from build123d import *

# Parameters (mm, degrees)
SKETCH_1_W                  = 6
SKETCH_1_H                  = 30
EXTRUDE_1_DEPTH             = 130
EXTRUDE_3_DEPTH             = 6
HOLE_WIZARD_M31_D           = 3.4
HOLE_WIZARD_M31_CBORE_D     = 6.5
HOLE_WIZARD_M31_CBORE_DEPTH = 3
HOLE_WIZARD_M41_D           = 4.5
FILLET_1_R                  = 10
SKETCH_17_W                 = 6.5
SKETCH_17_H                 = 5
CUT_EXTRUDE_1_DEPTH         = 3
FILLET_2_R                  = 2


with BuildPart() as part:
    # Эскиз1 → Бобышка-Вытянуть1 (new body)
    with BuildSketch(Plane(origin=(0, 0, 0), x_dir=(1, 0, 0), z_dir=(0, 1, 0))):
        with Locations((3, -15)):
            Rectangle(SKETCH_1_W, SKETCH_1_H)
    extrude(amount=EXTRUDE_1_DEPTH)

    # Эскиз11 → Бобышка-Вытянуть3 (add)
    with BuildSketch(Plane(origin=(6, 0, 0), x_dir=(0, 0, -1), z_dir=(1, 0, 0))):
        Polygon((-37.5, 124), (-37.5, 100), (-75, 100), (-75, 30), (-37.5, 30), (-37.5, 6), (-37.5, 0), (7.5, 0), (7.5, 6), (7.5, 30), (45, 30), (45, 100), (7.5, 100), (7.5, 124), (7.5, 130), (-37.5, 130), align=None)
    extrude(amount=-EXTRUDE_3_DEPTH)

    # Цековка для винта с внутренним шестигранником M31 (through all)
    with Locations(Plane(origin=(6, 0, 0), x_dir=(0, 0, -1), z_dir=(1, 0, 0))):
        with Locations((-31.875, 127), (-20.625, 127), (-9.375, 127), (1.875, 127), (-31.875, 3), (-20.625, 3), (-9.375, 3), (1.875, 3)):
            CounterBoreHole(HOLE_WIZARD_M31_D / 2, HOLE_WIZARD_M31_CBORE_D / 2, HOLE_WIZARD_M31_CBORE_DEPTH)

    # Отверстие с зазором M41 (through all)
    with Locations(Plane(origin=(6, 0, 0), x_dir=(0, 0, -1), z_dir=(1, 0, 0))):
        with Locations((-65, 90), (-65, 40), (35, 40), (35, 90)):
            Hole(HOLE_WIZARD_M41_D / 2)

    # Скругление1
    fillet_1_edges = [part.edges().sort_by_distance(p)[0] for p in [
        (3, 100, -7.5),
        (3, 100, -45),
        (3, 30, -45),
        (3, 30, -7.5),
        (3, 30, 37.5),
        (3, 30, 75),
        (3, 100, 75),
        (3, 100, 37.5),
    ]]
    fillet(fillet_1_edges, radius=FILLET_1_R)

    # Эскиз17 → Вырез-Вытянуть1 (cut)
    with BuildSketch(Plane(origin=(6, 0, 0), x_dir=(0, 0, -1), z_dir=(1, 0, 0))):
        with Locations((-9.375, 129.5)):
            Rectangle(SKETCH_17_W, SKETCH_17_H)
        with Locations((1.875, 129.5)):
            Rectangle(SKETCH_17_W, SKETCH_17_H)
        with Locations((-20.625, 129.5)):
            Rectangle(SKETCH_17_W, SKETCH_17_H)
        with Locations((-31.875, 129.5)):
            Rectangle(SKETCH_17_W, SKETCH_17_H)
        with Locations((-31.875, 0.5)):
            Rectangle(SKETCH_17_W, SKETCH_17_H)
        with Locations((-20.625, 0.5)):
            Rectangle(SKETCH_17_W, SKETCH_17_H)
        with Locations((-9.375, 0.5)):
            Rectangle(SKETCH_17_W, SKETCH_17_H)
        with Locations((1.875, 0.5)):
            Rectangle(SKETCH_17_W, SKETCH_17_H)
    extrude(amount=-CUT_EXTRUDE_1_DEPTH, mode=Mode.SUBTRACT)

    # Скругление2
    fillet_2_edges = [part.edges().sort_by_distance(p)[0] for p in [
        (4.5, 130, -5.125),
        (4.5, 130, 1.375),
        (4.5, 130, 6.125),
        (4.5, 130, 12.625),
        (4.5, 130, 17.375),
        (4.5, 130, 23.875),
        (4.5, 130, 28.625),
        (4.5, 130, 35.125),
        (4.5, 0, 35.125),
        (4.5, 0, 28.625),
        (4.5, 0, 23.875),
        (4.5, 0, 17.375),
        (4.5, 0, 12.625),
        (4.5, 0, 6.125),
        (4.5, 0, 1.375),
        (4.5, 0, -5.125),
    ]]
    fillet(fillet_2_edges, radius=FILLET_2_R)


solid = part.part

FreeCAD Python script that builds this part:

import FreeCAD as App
import Part
import Sketcher
Q = App.Units.Quantity


def edges_at(feature, points):
    """Names of the edges that pass closest to the given points."""
    edges = feature.Shape.Edges
    near = lambda p: min(range(len(edges)), key=lambda i: edges[i].distToShape(Part.Vertex(*p))[0])
    return sorted({f"Edge{near(p) + 1}" for p in points})

doc = App.newDocument("Part")
body = doc.addObject("PartDesign::Body", "Body")

# Sketch on XZ plane
sketch1 = doc.addObject("Sketcher::SketchObject", "Sketch")
body.addObject(sketch1)
sketch1.AttachmentSupport = (doc.XZ_Plane, [""])
sketch1.MapMode = "FlatFace"
sketch1.addGeometry(Part.LineSegment(App.Vector(0, 0, 0), App.Vector(0, 30, 0)), False)
sketch1.addGeometry(Part.LineSegment(App.Vector(0, 30, 0), App.Vector(6, 30, 0)), False)
sketch1.addGeometry(Part.LineSegment(App.Vector(6, 30, 0), App.Vector(6, 0, 0)), False)
sketch1.addGeometry(Part.LineSegment(App.Vector(6, 0, 0), App.Vector(0, 0, 0)), False)
sketch1.addConstraint(Sketcher.Constraint("Coincident", 0, 2, 1, 1))
sketch1.addConstraint(Sketcher.Constraint("Coincident", 1, 2, 2, 1))
sketch1.addConstraint(Sketcher.Constraint("Coincident", 2, 2, 3, 1))
sketch1.addConstraint(Sketcher.Constraint("Coincident", 3, 2, 0, 1))
sketch1.addConstraint(Sketcher.Constraint("Vertical", 0))
sketch1.addConstraint(Sketcher.Constraint("Horizontal", 1))
sketch1.addConstraint(Sketcher.Constraint("Vertical", 2))
sketch1.addConstraint(Sketcher.Constraint("Horizontal", 3))
sketch1.addConstraint(Sketcher.Constraint("Coincident", 3, 2, -1, 1))
sketch1.addConstraint(Sketcher.Constraint("DistanceX", 1, 1, 1, 2, Q("6 mm")))
sketch1.addConstraint(Sketcher.Constraint("DistanceY", 0, 1, 0, 2, Q("30 mm")))
pad1 = doc.addObject("PartDesign::Pad", "Pad")
body.addObject(pad1)
pad1.Profile = sketch1
pad1.Length = 130
pad1.Reversed = True

# Sketch on YZ plane
sketch2 = doc.addObject("Sketcher::SketchObject", "Sketch001")
body.addObject(sketch2)
sketch2.AttachmentSupport = (doc.YZ_Plane, [""])
sketch2.MapMode = "FlatFace"
sketch2.AttachmentOffset = App.Placement(App.Vector(0, 0, 6), App.Rotation())
sketch2.addGeometry(Part.LineSegment(App.Vector(100, 38, 0), App.Vector(100, 75, 0)), False)
sketch2.addGeometry(Part.LineSegment(App.Vector(100, 75, 0), App.Vector(30, 75, 0)), False)
sketch2.addGeometry(Part.LineSegment(App.Vector(30, 75, 0), App.Vector(30, 38, 0)), False)
sketch2.addGeometry(Part.LineSegment(App.Vector(30, 38, 0), App.Vector(0, 38, 0)), False)
sketch2.addGeometry(Part.LineSegment(App.Vector(0, 38, 0), App.Vector(0, -8, 0)), False)
sketch2.addGeometry(Part.LineSegment(App.Vector(0, -8, 0), App.Vector(30, -8, 0)), False)
sketch2.addGeometry(Part.LineSegment(App.Vector(30, -8, 0), App.Vector(30, -45, 0)), False)
sketch2.addGeometry(Part.LineSegment(App.Vector(30, -45, 0), App.Vector(100, -45, 0)), False)
sketch2.addGeometry(Part.LineSegment(App.Vector(100, -45, 0), App.Vector(100, -8, 0)), False)
sketch2.addGeometry(Part.LineSegment(App.Vector(100, -8, 0), App.Vector(130, -8, 0)), False)
sketch2.addGeometry(Part.LineSegment(App.Vector(130, -8, 0), App.Vector(130, 38, 0)), False)
sketch2.addGeometry(Part.LineSegment(App.Vector(130, 38, 0), App.Vector(100, 38, 0)), False)
sketch2.addConstraint(Sketcher.Constraint("Coincident", 0, 2, 1, 1))
sketch2.addConstraint(Sketcher.Constraint("Coincident", 1, 2, 2, 1))
sketch2.addConstraint(Sketcher.Constraint("Coincident", 2, 2, 3, 1))
sketch2.addConstraint(Sketcher.Constraint("Coincident", 3, 2, 4, 1))
sketch2.addConstraint(Sketcher.Constraint("Coincident", 4, 2, 5, 1))
sketch2.addConstraint(Sketcher.Constraint("Coincident", 5, 2, 6, 1))
sketch2.addConstraint(Sketcher.Constraint("Coincident", 6, 2, 7, 1))
sketch2.addConstraint(Sketcher.Constraint("Coincident", 7, 2, 8, 1))
sketch2.addConstraint(Sketcher.Constraint("Coincident", 8, 2, 9, 1))
sketch2.addConstraint(Sketcher.Constraint("Coincident", 9, 2, 10, 1))
sketch2.addConstraint(Sketcher.Constraint("Coincident", 10, 2, 11, 1))
sketch2.addConstraint(Sketcher.Constraint("Coincident", 11, 2, 0, 1))
sketch2.addConstraint(Sketcher.Constraint("Vertical", 0))
sketch2.addConstraint(Sketcher.Constraint("Horizontal", 1))
sketch2.addConstraint(Sketcher.Constraint("Vertical", 2))
sketch2.addConstraint(Sketcher.Constraint("Horizontal", 3))
sketch2.addConstraint(Sketcher.Constraint("Vertical", 4))
sketch2.addConstraint(Sketcher.Constraint("Horizontal", 5))
sketch2.addConstraint(Sketcher.Constraint("Vertical", 6))
sketch2.addConstraint(Sketcher.Constraint("Horizontal", 7))
sketch2.addConstraint(Sketcher.Constraint("Vertical", 8))
sketch2.addConstraint(Sketcher.Constraint("Horizontal", 9))
sketch2.addConstraint(Sketcher.Constraint("Vertical", 10))
sketch2.addConstraint(Sketcher.Constraint("Horizontal", 11))
sketch2.addConstraint(Sketcher.Constraint("PointOnObject", 3, 2, -2))
sketch2.addConstraint(Sketcher.Constraint("Horizontal", 5, 2, 8, 2))
sketch2.addConstraint(Sketcher.Constraint("Horizontal", 3, 2, 10, 2))
sketch2.addConstraint(Sketcher.Constraint("Vertical", 2, 2, 5, 2))
sketch2.addConstraint(Sketcher.Constraint("Vertical", 0, 2, 7, 2))
sketch2.addConstraint(Sketcher.Constraint("Equal", 5, 9))
sketch2.addConstraint(Sketcher.Constraint("Equal", 2, 6))
sketch2.addConstraint(Sketcher.Constraint("DistanceX", 1, 2, 1, 1, Q("70 mm")))
sketch2.addConstraint(Sketcher.Constraint("DistanceX", 3, 2, 3, 1, Q("30 mm")))
sketch2.addConstraint(Sketcher.Constraint("DistanceY", 4, 2, 4, 1, Q("45 mm")))
sketch2.addConstraint(Sketcher.Constraint("DistanceY", 0, 1, 0, 2, Q("37.5 mm")))
sketch2.addConstraint(Sketcher.Constraint("DistanceY", -1, 1, 0, 2, Q("75 mm")))
pad2 = doc.addObject("PartDesign::Pad", "Pad001")
body.addObject(pad2)
pad2.Profile = sketch2
pad2.Length = 6
pad2.Reversed = True

# Sketch on YZ plane
sketch3 = doc.addObject("Sketcher::SketchObject", "Sketch002")
body.addObject(sketch3)
sketch3.AttachmentSupport = (doc.YZ_Plane, [""])
sketch3.MapMode = "FlatFace"
sketch3.AttachmentOffset = App.Placement(App.Vector(0, 0, 6), App.Rotation())
sketch3.addGeometry(Part.Circle(App.Vector(127, 31.9, 0), App.Vector(0, 0, 1), 1.7), False)
sketch3.addGeometry(Part.Circle(App.Vector(127, 20.6, 0), App.Vector(0, 0, 1), 1.7), False)
sketch3.addGeometry(Part.Circle(App.Vector(127, 9.4, 0), App.Vector(0, 0, 1), 1.7), False)
sketch3.addGeometry(Part.Circle(App.Vector(127, -1.9, 0), App.Vector(0, 0, 1), 1.7), False)
sketch3.addGeometry(Part.Circle(App.Vector(3, 31.9, 0), App.Vector(0, 0, 1), 1.7), False)
sketch3.addGeometry(Part.Circle(App.Vector(3, 20.6, 0), App.Vector(0, 0, 1), 1.7), False)
sketch3.addGeometry(Part.Circle(App.Vector(3, 9.4, 0), App.Vector(0, 0, 1), 1.7), False)
sketch3.addGeometry(Part.Circle(App.Vector(3, -1.9, 0), App.Vector(0, 0, 1), 1.7), False)
sketch3.addConstraint(Sketcher.Constraint("Equal", 0, 1))
sketch3.addConstraint(Sketcher.Constraint("Equal", 1, 2))
sketch3.addConstraint(Sketcher.Constraint("Equal", 2, 3))
sketch3.addConstraint(Sketcher.Constraint("Equal", 3, 4))
sketch3.addConstraint(Sketcher.Constraint("Equal", 4, 5))
sketch3.addConstraint(Sketcher.Constraint("Equal", 5, 6))
sketch3.addConstraint(Sketcher.Constraint("Equal", 6, 7))
sketch3.addConstraint(Sketcher.Constraint("Horizontal", 0, 3, 4, 3))
sketch3.addConstraint(Sketcher.Constraint("Horizontal", 1, 3, 5, 3))
sketch3.addConstraint(Sketcher.Constraint("Horizontal", 2, 3, 6, 3))
sketch3.addConstraint(Sketcher.Constraint("Horizontal", 3, 3, 7, 3))
sketch3.addConstraint(Sketcher.Constraint("Vertical", 0, 3, 1, 3))
sketch3.addConstraint(Sketcher.Constraint("Vertical", 1, 3, 2, 3))
sketch3.addConstraint(Sketcher.Constraint("Vertical", 2, 3, 3, 3))
sketch3.addConstraint(Sketcher.Constraint("Vertical", 4, 3, 5, 3))
sketch3.addConstraint(Sketcher.Constraint("Vertical", 5, 3, 6, 3))
sketch3.addConstraint(Sketcher.Constraint("Vertical", 6, 3, 7, 3))
sketch3.addConstraint(Sketcher.Constraint("Diameter", 0, Q("3.4 mm")))
sketch3.addConstraint(Sketcher.Constraint("DistanceX", -1, 1, 0, 3, Q("127 mm")))
sketch3.addConstraint(Sketcher.Constraint("DistanceX", -1, 1, 4, 3, Q("3 mm")))
sketch3.addConstraint(Sketcher.Constraint("DistanceY", 2, 3, 0, 3, Q("22.5 mm")))
sketch3.addConstraint(Sketcher.Constraint("DistanceY", 3, 3, 1, 3, Q("22.5 mm")))
sketch3.addConstraint(Sketcher.Constraint("DistanceY", 1, 3, 0, 3, Q("11.25 mm")))
sketch3.addConstraint(Sketcher.Constraint("DistanceY", -1, 1, 0, 3, Q("31.875 mm")))
doc.recompute()
hole = doc.addObject("PartDesign::Hole", "Hole")
body.addObject(hole)
hole.Profile = sketch3
hole.ThreadType = "None"
hole.Diameter = 3.4
hole.DepthType = "ThroughAll"
hole.HoleCutType = "Counterbore"
hole.HoleCutDiameter = 6.5
hole.HoleCutDepth = 3

# Sketch on YZ plane
sketch4 = doc.addObject("Sketcher::SketchObject", "Sketch003")
body.addObject(sketch4)
sketch4.AttachmentSupport = (doc.YZ_Plane, [""])
sketch4.MapMode = "FlatFace"
sketch4.AttachmentOffset = App.Placement(App.Vector(0, 0, 6), App.Rotation())
sketch4.addGeometry(Part.Circle(App.Vector(90, 65, 0), App.Vector(0, 0, 1), 2.2), False)
sketch4.addGeometry(Part.Circle(App.Vector(40, 65, 0), App.Vector(0, 0, 1), 2.2), False)
sketch4.addGeometry(Part.Circle(App.Vector(40, -35, 0), App.Vector(0, 0, 1), 2.2), False)
sketch4.addGeometry(Part.Circle(App.Vector(90, -35, 0), App.Vector(0, 0, 1), 2.2), False)
sketch4.addConstraint(Sketcher.Constraint("Equal", 0, 1))
sketch4.addConstraint(Sketcher.Constraint("Equal", 1, 2))
sketch4.addConstraint(Sketcher.Constraint("Equal", 2, 3))
sketch4.addConstraint(Sketcher.Constraint("Horizontal", 0, 3, 1, 3))
sketch4.addConstraint(Sketcher.Constraint("Horizontal", 2, 3, 3, 3))
sketch4.addConstraint(Sketcher.Constraint("Vertical", 1, 3, 2, 3))
sketch4.addConstraint(Sketcher.Constraint("Vertical", 0, 3, 3, 3))
sketch4.addConstraint(Sketcher.Constraint("Diameter", 0, Q("4.5 mm")))
sketch4.addConstraint(Sketcher.Constraint("DistanceX", -1, 1, 0, 3, Q("90 mm")))
sketch4.addConstraint(Sketcher.Constraint("DistanceY", -1, 1, 0, 3, Q("65 mm")))
sketch4.addConstraint(Sketcher.Constraint("DistanceX", -1, 1, 1, 3, Q("40 mm")))
sketch4.addConstraint(Sketcher.Constraint("DistanceY", 2, 3, -1, 1, Q("35 mm")))
doc.recompute()
hole2 = doc.addObject("PartDesign::Hole", "Hole001")
body.addObject(hole2)
hole2.Profile = sketch4
hole2.ThreadType = "None"
hole2.Diameter = 4.5
hole2.DepthType = "ThroughAll"
doc.recompute()

fillet = doc.addObject("PartDesign::Fillet", "Fillet")
body.addObject(fillet)
fillet.Base = (hole2, edges_at(hole2, [
    (3, 100, -7.5),
    (3, 100, -45),
    (3, 30, -45),
    (3, 30, -7.5),
    (3, 30, 37.5),
    (3, 30, 75),
    (3, 100, 75),
    (3, 100, 37.5),
]))
fillet.Radius = 10

# Sketch on YZ plane
sketch5 = doc.addObject("Sketcher::SketchObject", "Sketch004")
body.addObject(sketch5)
sketch5.AttachmentSupport = (doc.YZ_Plane, [""])
sketch5.MapMode = "FlatFace"
sketch5.AttachmentOffset = App.Placement(App.Vector(0, 0, 6), App.Rotation())
sketch5.addGeometry(Part.LineSegment(App.Vector(132, 13, 0), App.Vector(127, 13, 0)), False)
sketch5.addGeometry(Part.LineSegment(App.Vector(127, 13, 0), App.Vector(127, 6, 0)), False)
sketch5.addGeometry(Part.LineSegment(App.Vector(127, 6, 0), App.Vector(132, 6, 0)), False)
sketch5.addGeometry(Part.LineSegment(App.Vector(132, 6, 0), App.Vector(132, 13, 0)), False)
sketch5.addGeometry(Part.LineSegment(App.Vector(132, 1, 0), App.Vector(127, 1, 0)), False)
sketch5.addGeometry(Part.LineSegment(App.Vector(127, 1, 0), App.Vector(127, -5, 0)), False)
sketch5.addGeometry(Part.LineSegment(App.Vector(127, -5, 0), App.Vector(132, -5, 0)), False)
sketch5.addGeometry(Part.LineSegment(App.Vector(132, -5, 0), App.Vector(132, 1, 0)), False)
sketch5.addGeometry(Part.LineSegment(App.Vector(132, 24, 0), App.Vector(127, 24, 0)), False)
sketch5.addGeometry(Part.LineSegment(App.Vector(127, 24, 0), App.Vector(127, 17, 0)), False)
sketch5.addGeometry(Part.LineSegment(App.Vector(127, 17, 0), App.Vector(132, 17, 0)), False)
sketch5.addGeometry(Part.LineSegment(App.Vector(132, 17, 0), App.Vector(132, 24, 0)), False)
sketch5.addGeometry(Part.LineSegment(App.Vector(132, 35, 0), App.Vector(127, 35, 0)), False)
sketch5.addGeometry(Part.LineSegment(App.Vector(127, 35, 0), App.Vector(127, 29, 0)), False)
sketch5.addGeometry(Part.LineSegment(App.Vector(127, 29, 0), App.Vector(132, 29, 0)), False)
sketch5.addGeometry(Part.LineSegment(App.Vector(132, 29, 0), App.Vector(132, 35, 0)), False)
sketch5.addGeometry(Part.LineSegment(App.Vector(3, 35, 0), App.Vector(-2, 35, 0)), False)
sketch5.addGeometry(Part.LineSegment(App.Vector(-2, 35, 0), App.Vector(-2, 29, 0)), False)
sketch5.addGeometry(Part.LineSegment(App.Vector(-2, 29, 0), App.Vector(3, 29, 0)), False)
sketch5.addGeometry(Part.LineSegment(App.Vector(3, 29, 0), App.Vector(3, 35, 0)), False)
sketch5.addGeometry(Part.LineSegment(App.Vector(3, 24, 0), App.Vector(-2, 24, 0)), False)
sketch5.addGeometry(Part.LineSegment(App.Vector(-2, 24, 0), App.Vector(-2, 17, 0)), False)
sketch5.addGeometry(Part.LineSegment(App.Vector(-2, 17, 0), App.Vector(3, 17, 0)), False)
sketch5.addGeometry(Part.LineSegment(App.Vector(3, 17, 0), App.Vector(3, 24, 0)), False)
sketch5.addGeometry(Part.LineSegment(App.Vector(3, 13, 0), App.Vector(-2, 13, 0)), False)
sketch5.addGeometry(Part.LineSegment(App.Vector(-2, 13, 0), App.Vector(-2, 6, 0)), False)
sketch5.addGeometry(Part.LineSegment(App.Vector(-2, 6, 0), App.Vector(3, 6, 0)), False)
sketch5.addGeometry(Part.LineSegment(App.Vector(3, 6, 0), App.Vector(3, 13, 0)), False)
sketch5.addGeometry(Part.LineSegment(App.Vector(3, 1, 0), App.Vector(-2, 1, 0)), False)
sketch5.addGeometry(Part.LineSegment(App.Vector(-2, 1, 0), App.Vector(-2, -5, 0)), False)
sketch5.addGeometry(Part.LineSegment(App.Vector(-2, -5, 0), App.Vector(3, -5, 0)), False)
sketch5.addGeometry(Part.LineSegment(App.Vector(3, -5, 0), App.Vector(3, 1, 0)), False)
sketch5.addConstraint(Sketcher.Constraint("Coincident", 0, 2, 1, 1))
sketch5.addConstraint(Sketcher.Constraint("Coincident", 1, 2, 2, 1))
sketch5.addConstraint(Sketcher.Constraint("Coincident", 2, 2, 3, 1))
sketch5.addConstraint(Sketcher.Constraint("Coincident", 3, 2, 0, 1))
sketch5.addConstraint(Sketcher.Constraint("Coincident", 4, 2, 5, 1))
sketch5.addConstraint(Sketcher.Constraint("Coincident", 5, 2, 6, 1))
sketch5.addConstraint(Sketcher.Constraint("Coincident", 6, 2, 7, 1))
sketch5.addConstraint(Sketcher.Constraint("Coincident", 7, 2, 4, 1))
sketch5.addConstraint(Sketcher.Constraint("Coincident", 8, 2, 9, 1))
sketch5.addConstraint(Sketcher.Constraint("Coincident", 9, 2, 10, 1))
sketch5.addConstraint(Sketcher.Constraint("Coincident", 10, 2, 11, 1))
sketch5.addConstraint(Sketcher.Constraint("Coincident", 11, 2, 8, 1))
sketch5.addConstraint(Sketcher.Constraint("Coincident", 12, 2, 13, 1))
sketch5.addConstraint(Sketcher.Constraint("Coincident", 13, 2, 14, 1))
sketch5.addConstraint(Sketcher.Constraint("Coincident", 14, 2, 15, 1))
sketch5.addConstraint(Sketcher.Constraint("Coincident", 15, 2, 12, 1))
sketch5.addConstraint(Sketcher.Constraint("Coincident", 16, 2, 17, 1))
sketch5.addConstraint(Sketcher.Constraint("Coincident", 17, 2, 18, 1))
sketch5.addConstraint(Sketcher.Constraint("Coincident", 18, 2, 19, 1))
sketch5.addConstraint(Sketcher.Constraint("Coincident", 19, 2, 16, 1))
sketch5.addConstraint(Sketcher.Constraint("Coincident", 20, 2, 21, 1))
sketch5.addConstraint(Sketcher.Constraint("Coincident", 21, 2, 22, 1))
sketch5.addConstraint(Sketcher.Constraint("Coincident", 22, 2, 23, 1))
sketch5.addConstraint(Sketcher.Constraint("Coincident", 23, 2, 20, 1))
sketch5.addConstraint(Sketcher.Constraint("Coincident", 24, 2, 25, 1))
sketch5.addConstraint(Sketcher.Constraint("Coincident", 25, 2, 26, 1))
sketch5.addConstraint(Sketcher.Constraint("Coincident", 26, 2, 27, 1))
sketch5.addConstraint(Sketcher.Constraint("Coincident", 27, 2, 24, 1))
sketch5.addConstraint(Sketcher.Constraint("Coincident", 28, 2, 29, 1))
sketch5.addConstraint(Sketcher.Constraint("Coincident", 29, 2, 30, 1))
sketch5.addConstraint(Sketcher.Constraint("Coincident", 30, 2, 31, 1))
sketch5.addConstraint(Sketcher.Constraint("Coincident", 31, 2, 28, 1))
sketch5.addConstraint(Sketcher.Constraint("Horizontal", 0))
sketch5.addConstraint(Sketcher.Constraint("Vertical", 1))
sketch5.addConstraint(Sketcher.Constraint("Horizontal", 2))
sketch5.addConstraint(Sketcher.Constraint("Vertical", 3))
sketch5.addConstraint(Sketcher.Constraint("Horizontal", 4))
sketch5.addConstraint(Sketcher.Constraint("Vertical", 5))
sketch5.addConstraint(Sketcher.Constraint("Horizontal", 6))
sketch5.addConstraint(Sketcher.Constraint("Vertical", 7))
sketch5.addConstraint(Sketcher.Constraint("Horizontal", 8))
sketch5.addConstraint(Sketcher.Constraint("Vertical", 9))
sketch5.addConstraint(Sketcher.Constraint("Horizontal", 10))
sketch5.addConstraint(Sketcher.Constraint("Vertical", 11))
sketch5.addConstraint(Sketcher.Constraint("Horizontal", 12))
sketch5.addConstraint(Sketcher.Constraint("Vertical", 13))
sketch5.addConstraint(Sketcher.Constraint("Horizontal", 14))
sketch5.addConstraint(Sketcher.Constraint("Vertical", 15))
sketch5.addConstraint(Sketcher.Constraint("Horizontal", 16))
sketch5.addConstraint(Sketcher.Constraint("Vertical", 17))
sketch5.addConstraint(Sketcher.Constraint("Horizontal", 18))
sketch5.addConstraint(Sketcher.Constraint("Vertical", 19))
sketch5.addConstraint(Sketcher.Constraint("Horizontal", 20))
sketch5.addConstraint(Sketcher.Constraint("Vertical", 21))
sketch5.addConstraint(Sketcher.Constraint("Horizontal", 22))
sketch5.addConstraint(Sketcher.Constraint("Vertical", 23))
sketch5.addConstraint(Sketcher.Constraint("Horizontal", 24))
sketch5.addConstraint(Sketcher.Constraint("Vertical", 25))
sketch5.addConstraint(Sketcher.Constraint("Horizontal", 26))
sketch5.addConstraint(Sketcher.Constraint("Vertical", 27))
sketch5.addConstraint(Sketcher.Constraint("Horizontal", 28))
sketch5.addConstraint(Sketcher.Constraint("Vertical", 29))
sketch5.addConstraint(Sketcher.Constraint("Horizontal", 30))
sketch5.addConstraint(Sketcher.Constraint("Vertical", 31))
sketch5.addConstraint(Sketcher.Constraint("Horizontal", 15, 2, 16, 2))
sketch5.addConstraint(Sketcher.Constraint("Horizontal", 14, 2, 17, 2))
sketch5.addConstraint(Sketcher.Constraint("Horizontal", 11, 2, 20, 2))
sketch5.addConstraint(Sketcher.Constraint("Horizontal", 10, 2, 21, 2))
sketch5.addConstraint(Sketcher.Constraint("Horizontal", 3, 2, 24, 2))
sketch5.addConstraint(Sketcher.Constraint("Horizontal", 2, 2, 25, 2))
sketch5.addConstraint(Sketcher.Constraint("Horizontal", 7, 2, 28, 2))
sketch5.addConstraint(Sketcher.Constraint("Horizontal", 6, 2, 29, 2))
sketch5.addConstraint(Sketcher.Constraint("Vertical", 1, 2, 4, 2))
sketch5.addConstraint(Sketcher.Constraint("Vertical", 3, 2, 6, 2))
sketch5.addConstraint(Sketcher.Constraint("Vertical", 5, 2, 8, 2))
sketch5.addConstraint(Sketcher.Constraint("Vertical", 7, 2, 10, 2))
sketch5.addConstraint(Sketcher.Constraint("Vertical", 9, 2, 12, 2))
sketch5.addConstraint(Sketcher.Constraint("Vertical", 11, 2, 14, 2))
sketch5.addConstraint(Sketcher.Constraint("Vertical", 17, 2, 20, 2))
sketch5.addConstraint(Sketcher.Constraint("Vertical", 19, 2, 22, 2))
sketch5.addConstraint(Sketcher.Constraint("Vertical", 21, 2, 24, 2))
sketch5.addConstraint(Sketcher.Constraint("Vertical", 23, 2, 26, 2))
sketch5.addConstraint(Sketcher.Constraint("Vertical", 25, 2, 28, 2))
sketch5.addConstraint(Sketcher.Constraint("Vertical", 27, 2, 30, 2))
sketch5.addConstraint(Sketcher.Constraint("Equal", 14, 16))
sketch5.addConstraint(Sketcher.Constraint("Equal", 3, 5))
sketch5.addConstraint(Sketcher.Constraint("Equal", 7, 9))
sketch5.addConstraint(Sketcher.Constraint("Equal", 11, 13))
sketch5.addConstraint(Sketcher.Constraint("DistanceX", 0, 2, 0, 1, Q("5 mm")))
sketch5.addConstraint(Sketcher.Constraint("DistanceY", 1, 2, 1, 1, Q("6.5 mm")))
sketch5.addConstraint(Sketcher.Constraint("DistanceX", -1, 1, 0, 2, Q("127 mm")))
sketch5.addConstraint(Sketcher.Constraint("DistanceX", 16, 2, -1, 1, Q("2 mm")))
sketch5.addConstraint(Sketcher.Constraint("DistanceY", 24, 2, 17, 2, Q("16 mm")))
sketch5.addConstraint(Sketcher.Constraint("DistanceY", 28, 2, 21, 2, Q("16 mm")))
sketch5.addConstraint(Sketcher.Constraint("DistanceY", 4, 2, 1, 2, Q("4.75 mm")))
sketch5.addConstraint(Sketcher.Constraint("DistanceY", -1, 1, 0, 2, Q("12.625 mm")))
pocket1 = doc.addObject("PartDesign::Pocket", "Pocket")
body.addObject(pocket1)
pocket1.Profile = sketch5
pocket1.Length = 3
doc.recompute()

fillet2 = doc.addObject("PartDesign::Fillet", "Fillet001")
body.addObject(fillet2)
fillet2.Base = (pocket1, edges_at(pocket1, [
    (4.5, 130, -5.125),
    (4.5, 130, 1.375),
    (4.5, 130, 6.125),
    (4.5, 130, 12.625),
    (4.5, 130, 17.375),
    (4.5, 130, 23.875),
    (4.5, 130, 28.625),
    (4.5, 130, 35.125),
    (4.5, 0, 35.125),
    (4.5, 0, 28.625),
    (4.5, 0, 23.875),
    (4.5, 0, 17.375),
    (4.5, 0, 12.625),
    (4.5, 0, 6.125),
    (4.5, 0, 1.375),
    (4.5, 0, -5.125),
]))
fillet2.Radius = 2

doc.recompute()
